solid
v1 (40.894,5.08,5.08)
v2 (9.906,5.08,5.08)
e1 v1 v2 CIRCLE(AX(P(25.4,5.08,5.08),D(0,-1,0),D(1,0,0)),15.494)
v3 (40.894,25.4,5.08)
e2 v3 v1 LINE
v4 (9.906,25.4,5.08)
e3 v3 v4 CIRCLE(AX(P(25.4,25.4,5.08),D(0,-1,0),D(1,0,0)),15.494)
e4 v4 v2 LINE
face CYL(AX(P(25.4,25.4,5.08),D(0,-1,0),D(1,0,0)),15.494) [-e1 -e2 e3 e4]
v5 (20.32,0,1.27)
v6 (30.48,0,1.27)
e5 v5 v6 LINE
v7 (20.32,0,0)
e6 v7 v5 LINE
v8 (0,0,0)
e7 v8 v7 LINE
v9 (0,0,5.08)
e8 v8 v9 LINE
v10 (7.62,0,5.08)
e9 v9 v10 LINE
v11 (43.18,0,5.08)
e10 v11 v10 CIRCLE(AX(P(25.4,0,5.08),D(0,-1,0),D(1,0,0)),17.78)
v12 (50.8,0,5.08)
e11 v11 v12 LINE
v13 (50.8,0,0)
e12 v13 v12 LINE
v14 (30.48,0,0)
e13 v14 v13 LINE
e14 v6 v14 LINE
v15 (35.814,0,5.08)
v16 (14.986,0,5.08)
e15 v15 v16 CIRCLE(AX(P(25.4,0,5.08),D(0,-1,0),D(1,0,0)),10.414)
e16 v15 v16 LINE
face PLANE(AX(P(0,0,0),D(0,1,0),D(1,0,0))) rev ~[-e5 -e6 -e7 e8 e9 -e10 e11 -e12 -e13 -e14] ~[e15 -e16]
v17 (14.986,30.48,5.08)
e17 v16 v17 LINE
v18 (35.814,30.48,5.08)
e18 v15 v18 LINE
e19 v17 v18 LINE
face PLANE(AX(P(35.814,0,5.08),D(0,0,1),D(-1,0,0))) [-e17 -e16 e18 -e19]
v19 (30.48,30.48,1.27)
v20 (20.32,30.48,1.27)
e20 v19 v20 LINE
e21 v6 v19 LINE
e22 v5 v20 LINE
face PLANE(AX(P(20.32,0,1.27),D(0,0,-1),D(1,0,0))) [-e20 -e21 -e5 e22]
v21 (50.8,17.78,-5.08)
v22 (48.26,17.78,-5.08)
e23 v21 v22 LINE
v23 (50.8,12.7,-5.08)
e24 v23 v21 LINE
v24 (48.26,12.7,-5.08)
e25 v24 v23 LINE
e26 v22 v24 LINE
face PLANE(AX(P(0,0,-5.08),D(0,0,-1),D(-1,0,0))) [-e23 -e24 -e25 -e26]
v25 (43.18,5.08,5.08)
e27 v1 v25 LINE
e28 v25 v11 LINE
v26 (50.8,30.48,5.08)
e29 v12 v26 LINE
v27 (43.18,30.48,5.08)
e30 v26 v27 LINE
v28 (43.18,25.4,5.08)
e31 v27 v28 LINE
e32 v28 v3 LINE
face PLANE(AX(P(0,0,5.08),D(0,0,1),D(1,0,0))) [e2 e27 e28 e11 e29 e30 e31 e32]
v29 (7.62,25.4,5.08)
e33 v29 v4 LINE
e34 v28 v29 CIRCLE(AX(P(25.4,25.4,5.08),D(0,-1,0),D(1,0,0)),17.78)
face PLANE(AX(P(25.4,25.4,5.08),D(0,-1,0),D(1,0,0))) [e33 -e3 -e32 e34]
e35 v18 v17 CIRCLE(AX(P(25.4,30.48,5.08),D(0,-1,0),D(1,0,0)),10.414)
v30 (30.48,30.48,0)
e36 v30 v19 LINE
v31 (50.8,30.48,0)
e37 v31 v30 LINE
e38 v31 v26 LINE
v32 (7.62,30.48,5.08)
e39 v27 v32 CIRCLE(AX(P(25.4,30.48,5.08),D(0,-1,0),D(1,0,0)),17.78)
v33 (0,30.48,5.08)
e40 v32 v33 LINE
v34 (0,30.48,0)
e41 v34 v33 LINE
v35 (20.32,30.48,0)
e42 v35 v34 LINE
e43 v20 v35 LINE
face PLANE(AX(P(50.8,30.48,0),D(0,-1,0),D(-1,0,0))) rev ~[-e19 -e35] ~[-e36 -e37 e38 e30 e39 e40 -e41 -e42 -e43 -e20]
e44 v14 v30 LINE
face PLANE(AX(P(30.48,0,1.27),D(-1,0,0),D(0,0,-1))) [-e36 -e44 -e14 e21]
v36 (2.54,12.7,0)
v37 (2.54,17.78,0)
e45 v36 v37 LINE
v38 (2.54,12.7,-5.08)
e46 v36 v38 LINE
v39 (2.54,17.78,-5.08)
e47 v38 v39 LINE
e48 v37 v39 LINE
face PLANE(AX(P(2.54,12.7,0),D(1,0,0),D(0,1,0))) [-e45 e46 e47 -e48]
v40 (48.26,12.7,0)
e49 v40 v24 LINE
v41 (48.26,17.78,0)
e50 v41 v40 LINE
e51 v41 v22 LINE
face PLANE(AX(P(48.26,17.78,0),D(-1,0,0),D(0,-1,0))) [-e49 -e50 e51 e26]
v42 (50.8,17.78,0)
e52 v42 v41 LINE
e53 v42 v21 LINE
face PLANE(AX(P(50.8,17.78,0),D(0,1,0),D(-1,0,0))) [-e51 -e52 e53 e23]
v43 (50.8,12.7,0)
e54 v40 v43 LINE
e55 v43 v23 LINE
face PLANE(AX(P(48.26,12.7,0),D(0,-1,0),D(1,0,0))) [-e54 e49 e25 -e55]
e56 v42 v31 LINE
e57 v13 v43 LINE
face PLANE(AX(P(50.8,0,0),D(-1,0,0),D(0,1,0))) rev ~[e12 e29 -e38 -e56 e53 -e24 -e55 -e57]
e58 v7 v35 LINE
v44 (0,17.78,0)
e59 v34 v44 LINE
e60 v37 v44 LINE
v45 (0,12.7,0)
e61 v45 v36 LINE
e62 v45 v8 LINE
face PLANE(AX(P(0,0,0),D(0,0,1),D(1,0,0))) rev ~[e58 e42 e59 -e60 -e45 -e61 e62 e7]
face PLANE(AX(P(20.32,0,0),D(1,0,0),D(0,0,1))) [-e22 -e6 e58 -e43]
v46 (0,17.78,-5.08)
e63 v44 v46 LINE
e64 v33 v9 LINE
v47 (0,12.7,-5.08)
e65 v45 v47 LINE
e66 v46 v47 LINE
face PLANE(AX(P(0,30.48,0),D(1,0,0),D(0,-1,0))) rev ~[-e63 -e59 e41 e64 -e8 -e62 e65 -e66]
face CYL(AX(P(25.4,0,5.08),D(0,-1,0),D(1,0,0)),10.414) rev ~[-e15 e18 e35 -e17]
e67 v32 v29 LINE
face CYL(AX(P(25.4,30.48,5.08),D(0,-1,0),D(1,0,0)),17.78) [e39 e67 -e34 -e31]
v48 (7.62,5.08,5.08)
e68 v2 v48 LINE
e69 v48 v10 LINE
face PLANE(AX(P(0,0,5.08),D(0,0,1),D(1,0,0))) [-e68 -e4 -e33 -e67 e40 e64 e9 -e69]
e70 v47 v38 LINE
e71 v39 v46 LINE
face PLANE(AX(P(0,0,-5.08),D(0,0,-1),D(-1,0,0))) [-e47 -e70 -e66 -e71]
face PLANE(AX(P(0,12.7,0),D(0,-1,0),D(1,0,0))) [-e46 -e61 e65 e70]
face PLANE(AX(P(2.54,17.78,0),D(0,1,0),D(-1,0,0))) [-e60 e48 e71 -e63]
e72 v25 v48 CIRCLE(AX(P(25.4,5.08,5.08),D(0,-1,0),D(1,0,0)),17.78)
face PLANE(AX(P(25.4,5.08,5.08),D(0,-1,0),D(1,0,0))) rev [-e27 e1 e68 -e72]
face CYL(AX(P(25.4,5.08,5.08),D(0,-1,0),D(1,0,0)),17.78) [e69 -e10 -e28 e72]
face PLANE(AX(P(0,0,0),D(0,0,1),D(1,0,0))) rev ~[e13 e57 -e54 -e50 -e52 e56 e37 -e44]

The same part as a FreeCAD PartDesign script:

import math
import FreeCAD as App
import Part
import Sketcher

V = App.Vector
Q = App.Units.Quantity


def add_polygon(sketch, points):
    """Adds a closed chain of lines whose ends are joined by coincident constraints."""
    first, n = sketch.GeometryCount, len(points)
    for a, b in zip(points, points[1:] + points[:1]):
        sketch.addGeometry(Part.LineSegment(App.Vector(*a, 0), App.Vector(*b, 0)), False)
    for i in range(n):
        sketch.addConstraint(Sketcher.Constraint("Coincident", first + i, 2, first + (i + 1) % n, 1))

doc = App.newDocument("Part")
params = doc.addObject("Spreadsheet::Sheet", "Params")
for row, (alias, value) in enumerate([
    ("sketch1_width", "2 in"),
    ("sketch1_height", "1.2 in"),
    ("pad1_length", "0.2 in"),
    ("sketch2_width", "0.7 in"),
    ("sketch2_height", "0.2 in"),
    ("sketch2_width2", "0.09 in"),
    ("sketch2_height2", "1.2 in"),
    ("revolution_angle", "180 deg"),
    ("sketch3_radius", "0.41 in"),
    ("sketch4_width", "0.1 in"),
    ("sketch4_height", "0.2 in"),
    ("pad2_length", "0.2 in"),
    ("sketch5_width", "0.4 in"),
    ("sketch5_height", "0.05 in"),
], start=1):
    params.set(f"A{row}", alias)
    params.set(f"B{row}", "=" + value)
    params.setAlias(f"B{row}", alias)

body = doc.addObject("PartDesign::Body", "Body")

sketch1 = body.newObject("Sketcher::SketchObject", "Sketch")
sketch1.AttachmentSupport = (doc.getObject("XY_Plane"), [""])
sketch1.MapMode = "FlatFace"
add_polygon(sketch1, [(0, 30.48), (0, 0), (50.8, 0), (50.8, 30.48)])
sketch1.addConstraint([
    Sketcher.Constraint("Vertical", 0),
    Sketcher.Constraint("Horizontal", 1),
    Sketcher.Constraint("Vertical", 2),
    Sketcher.Constraint("Horizontal", 3),
    Sketcher.Constraint("Coincident", 0, 2, -1, 1),
    Sketcher.Constraint("DistanceX", 1, 1, 1, 2, Q("2 in")),
    Sketcher.Constraint("DistanceY", 0, 2, 0, 1, Q("1.2 in")),
])
sketch1.setExpression("Constraints[9]", "Params.sketch1_width")
sketch1.setExpression("Constraints[10]", "Params.sketch1_height")
pad1 = body.newObject("PartDesign::Pad", "Pad")
pad1.Profile = sketch1
pad1.setExpression("Length", "Params.pad1_length")

sketch2 = body.newObject("Sketcher::SketchObject", "Sketch001")
sketch2.AttachmentSupport = (doc.getObject("XY_Plane"), [""])
sketch2.MapMode = "FlatFace"
sketch2.AttachmentOffset = App.Placement(V(0, 0, 0.2 * 25.4), App.Rotation())
add_polygon(sketch2, [(43.18, 30.48), (25.4, 30.48), (25.4, 0), (43.18, 0), (43.18, 5.08), (40.894, 5.08), (40.894, 25.4), (43.18, 25.4)])
sketch2.addGeometry(Part.LineSegment(V(25.4, 30.48, 0), V(25.4, 0, 0)), True)
sketch2.addConstraint([
    Sketcher.Constraint("Horizontal", 0),
    Sketcher.Constraint("Vertical", 1),
    Sketcher.Constraint("Horizontal", 2),
    Sketcher.Constraint("Vertical", 3),
    Sketcher.Constraint("Horizontal", 4),
    Sketcher.Constraint("Vertical", 5),
    Sketcher.Constraint("Horizontal", 6),
    Sketcher.Constraint("Vertical", 7),
    Sketcher.Constraint("Vertical", 8),
    Sketcher.Constraint("Coincident", 8, 1, 0, 2),
    Sketcher.Constraint("PointOnObject", 1, 2, -1),
    Sketcher.Constraint("PointOnObject", 8, 2, -1),
    Sketcher.Constraint("Vertical", 3, 2, 6, 2),
    Sketcher.Constraint("Equal", 3, 7),
    Sketcher.Constraint("DistanceX", 0, 2, 0, 1, Q("0.7 in")),
    Sketcher.Constraint("DistanceY", 3, 1, 3, 2, Q("0.2 in")),
    Sketcher.Constraint("DistanceX", 4, 2, 4, 1, Q("0.09 in")),
    Sketcher.Constraint("DistanceY", 1, 2, 1, 1, Q("1.2 in")),
    Sketcher.Constraint("DistanceX", -1, 1, 0, 2, Q("1 in")),
])
sketch2.setExpression("Constraints[22]", "Params.sketch2_width")
sketch2.setExpression("Constraints[23]", "Params.sketch2_height")
sketch2.setExpression("Constraints[24]", "Params.sketch2_width2")
sketch2.setExpression("Constraints[25]", "Params.sketch2_height2")
revolution = body.newObject("PartDesign::Revolution", "Revolution")
revolution.Profile = sketch2
revolution.ReferenceAxis = (sketch2, ["Axis0"])
revolution.setExpression("Angle", "Params.revolution_angle")

sketch3 = body.newObject("Sketcher::SketchObject", "Sketch002")
sketch3.AttachmentSupport = (doc.getObject("XZ_Plane"), [""])
sketch3.MapMode = "FlatFace"
sketch3.addGeometry([
    Part.LineSegment(V(14.986, 5.08, 0), V(35.814, 5.08, 0)),
    Part.ArcOfCircle(Part.Circle(V(25.4, 5.08, 0), V(0, 0, 1), 10.414), math.radians(0), math.radians(180)),
], False)
sketch3.addConstraint([
    Sketcher.Constraint("Coincident", 0, 1, 1, 2),
    Sketcher.Constraint("Coincident", 1, 1, 0, 2),
    Sketcher.Constraint("Horizontal", 0),
    Sketcher.Constraint("Horizontal", 1, 3, 0, 1),
    Sketcher.Constraint("DistanceY", -1, 1, 1, 3, Q("0.2 in")),
    Sketcher.Constraint("Radius", 1, Q("0.41 in")),
    Sketcher.Constraint("DistanceX", -1, 1, 1, 3, Q("1 in")),
])
sketch3.setExpression("Constraints[5]", "Params.sketch3_radius")
pocket1 = body.newObject("PartDesign::Pocket", "Pocket")
pocket1.Profile = sketch3
pocket1.Type = "UpToFirst"

sketch4 = body.newObject("Sketcher::SketchObject", "Sketch003")
sketch4.AttachmentSupport = (doc.getObject("XY_Plane"), [""])
sketch4.MapMode = "FlatFace"
add_polygon(sketch4, [(48.26, 17.78), (50.8, 17.78), (50.8, 12.7), (48.26, 12.7)])
add_polygon(sketch4, [(0, 17.78), (2.54, 17.78), (2.54, 12.7), (0, 12.7)])
sketch4.addConstraint([
    Sketcher.Constraint("Horizontal", 0),
    Sketcher.Constraint("Vertical", 1),
    Sketcher.Constraint("Horizontal", 2),
    Sketcher.Constraint("Vertical", 3),
    Sketcher.Constraint("Horizontal", 4),
    Sketcher.Constraint("Vertical", 5),
    Sketcher.Constraint("Horizontal", 6),
    Sketcher.Constraint("Vertical", 7),
    Sketcher.Constraint("PointOnObject", 6, 2, -2),
    Sketcher.Constraint("Horizontal", 3, 2, 4, 2),
    Sketcher.Constraint("Horizontal", 2, 2, 5, 2),
    Sketcher.Constraint("Equal", 2, 4),
    Sketcher.Constraint("DistanceX", 0, 1, 0, 2, Q("0.1 in")),
    Sketcher.Constraint("DistanceY", 1, 2, 1, 1, Q("0.2 in")),
    Sketcher.Constraint("DistanceX", -1, 1, 0, 2, Q("2 in")),
    Sketcher.Constraint("DistanceY", -1, 1, 0, 2, Q("0.7 in")),
])
sketch4.setExpression("Constraints[20]", "Params.sketch4_width")
sketch4.setExpression("Constraints[21]", "Params.sketch4_height")
pad2 = body.newObject("PartDesign::Pad", "Pad001")
pad2.Profile = sketch4
pad2.setExpression("Length", "Params.pad2_length")
pad2.Reversed = True

sketch5 = body.newObject("Sketcher::SketchObject", "Sketch004")
sketch5.AttachmentSupport = (doc.getObject("XZ_Plane"), [""])
sketch5.MapMode = "FlatFace"
add_polygon(sketch5, [(30.48, 1.27), (20.32, 1.27), (20.32, 0), (30.48, 0)])
sketch5.addConstraint([
    Sketcher.Constraint("Horizontal", 0),
    Sketcher.Constraint("Vertical", 1),
    Sketcher.Constraint("Horizontal", 2),
    Sketcher.Constraint("Vertical", 3),
    Sketcher.Constraint("PointOnObject", 1, 2, -1),
    Sketcher.Constraint("DistanceX", 0, 2, 0, 1, Q("0.4 in")),
    Sketcher.Constraint("DistanceY", 1, 2, 1, 1, Q("0.05 in")),
    Sketcher.Constraint("DistanceX", -1, 1, 0, 2, Q("0.8 in")),
])
sketch5.setExpression("Constraints[9]", "Params.sketch5_width")
sketch5.setExpression("Constraints[10]", "Params.sketch5_height")
pocket2 = body.newObject("PartDesign::Pocket", "Pocket001")
pocket2.Profile = sketch5
pocket2.Type = "UpToFirst"

doc.recompute()
